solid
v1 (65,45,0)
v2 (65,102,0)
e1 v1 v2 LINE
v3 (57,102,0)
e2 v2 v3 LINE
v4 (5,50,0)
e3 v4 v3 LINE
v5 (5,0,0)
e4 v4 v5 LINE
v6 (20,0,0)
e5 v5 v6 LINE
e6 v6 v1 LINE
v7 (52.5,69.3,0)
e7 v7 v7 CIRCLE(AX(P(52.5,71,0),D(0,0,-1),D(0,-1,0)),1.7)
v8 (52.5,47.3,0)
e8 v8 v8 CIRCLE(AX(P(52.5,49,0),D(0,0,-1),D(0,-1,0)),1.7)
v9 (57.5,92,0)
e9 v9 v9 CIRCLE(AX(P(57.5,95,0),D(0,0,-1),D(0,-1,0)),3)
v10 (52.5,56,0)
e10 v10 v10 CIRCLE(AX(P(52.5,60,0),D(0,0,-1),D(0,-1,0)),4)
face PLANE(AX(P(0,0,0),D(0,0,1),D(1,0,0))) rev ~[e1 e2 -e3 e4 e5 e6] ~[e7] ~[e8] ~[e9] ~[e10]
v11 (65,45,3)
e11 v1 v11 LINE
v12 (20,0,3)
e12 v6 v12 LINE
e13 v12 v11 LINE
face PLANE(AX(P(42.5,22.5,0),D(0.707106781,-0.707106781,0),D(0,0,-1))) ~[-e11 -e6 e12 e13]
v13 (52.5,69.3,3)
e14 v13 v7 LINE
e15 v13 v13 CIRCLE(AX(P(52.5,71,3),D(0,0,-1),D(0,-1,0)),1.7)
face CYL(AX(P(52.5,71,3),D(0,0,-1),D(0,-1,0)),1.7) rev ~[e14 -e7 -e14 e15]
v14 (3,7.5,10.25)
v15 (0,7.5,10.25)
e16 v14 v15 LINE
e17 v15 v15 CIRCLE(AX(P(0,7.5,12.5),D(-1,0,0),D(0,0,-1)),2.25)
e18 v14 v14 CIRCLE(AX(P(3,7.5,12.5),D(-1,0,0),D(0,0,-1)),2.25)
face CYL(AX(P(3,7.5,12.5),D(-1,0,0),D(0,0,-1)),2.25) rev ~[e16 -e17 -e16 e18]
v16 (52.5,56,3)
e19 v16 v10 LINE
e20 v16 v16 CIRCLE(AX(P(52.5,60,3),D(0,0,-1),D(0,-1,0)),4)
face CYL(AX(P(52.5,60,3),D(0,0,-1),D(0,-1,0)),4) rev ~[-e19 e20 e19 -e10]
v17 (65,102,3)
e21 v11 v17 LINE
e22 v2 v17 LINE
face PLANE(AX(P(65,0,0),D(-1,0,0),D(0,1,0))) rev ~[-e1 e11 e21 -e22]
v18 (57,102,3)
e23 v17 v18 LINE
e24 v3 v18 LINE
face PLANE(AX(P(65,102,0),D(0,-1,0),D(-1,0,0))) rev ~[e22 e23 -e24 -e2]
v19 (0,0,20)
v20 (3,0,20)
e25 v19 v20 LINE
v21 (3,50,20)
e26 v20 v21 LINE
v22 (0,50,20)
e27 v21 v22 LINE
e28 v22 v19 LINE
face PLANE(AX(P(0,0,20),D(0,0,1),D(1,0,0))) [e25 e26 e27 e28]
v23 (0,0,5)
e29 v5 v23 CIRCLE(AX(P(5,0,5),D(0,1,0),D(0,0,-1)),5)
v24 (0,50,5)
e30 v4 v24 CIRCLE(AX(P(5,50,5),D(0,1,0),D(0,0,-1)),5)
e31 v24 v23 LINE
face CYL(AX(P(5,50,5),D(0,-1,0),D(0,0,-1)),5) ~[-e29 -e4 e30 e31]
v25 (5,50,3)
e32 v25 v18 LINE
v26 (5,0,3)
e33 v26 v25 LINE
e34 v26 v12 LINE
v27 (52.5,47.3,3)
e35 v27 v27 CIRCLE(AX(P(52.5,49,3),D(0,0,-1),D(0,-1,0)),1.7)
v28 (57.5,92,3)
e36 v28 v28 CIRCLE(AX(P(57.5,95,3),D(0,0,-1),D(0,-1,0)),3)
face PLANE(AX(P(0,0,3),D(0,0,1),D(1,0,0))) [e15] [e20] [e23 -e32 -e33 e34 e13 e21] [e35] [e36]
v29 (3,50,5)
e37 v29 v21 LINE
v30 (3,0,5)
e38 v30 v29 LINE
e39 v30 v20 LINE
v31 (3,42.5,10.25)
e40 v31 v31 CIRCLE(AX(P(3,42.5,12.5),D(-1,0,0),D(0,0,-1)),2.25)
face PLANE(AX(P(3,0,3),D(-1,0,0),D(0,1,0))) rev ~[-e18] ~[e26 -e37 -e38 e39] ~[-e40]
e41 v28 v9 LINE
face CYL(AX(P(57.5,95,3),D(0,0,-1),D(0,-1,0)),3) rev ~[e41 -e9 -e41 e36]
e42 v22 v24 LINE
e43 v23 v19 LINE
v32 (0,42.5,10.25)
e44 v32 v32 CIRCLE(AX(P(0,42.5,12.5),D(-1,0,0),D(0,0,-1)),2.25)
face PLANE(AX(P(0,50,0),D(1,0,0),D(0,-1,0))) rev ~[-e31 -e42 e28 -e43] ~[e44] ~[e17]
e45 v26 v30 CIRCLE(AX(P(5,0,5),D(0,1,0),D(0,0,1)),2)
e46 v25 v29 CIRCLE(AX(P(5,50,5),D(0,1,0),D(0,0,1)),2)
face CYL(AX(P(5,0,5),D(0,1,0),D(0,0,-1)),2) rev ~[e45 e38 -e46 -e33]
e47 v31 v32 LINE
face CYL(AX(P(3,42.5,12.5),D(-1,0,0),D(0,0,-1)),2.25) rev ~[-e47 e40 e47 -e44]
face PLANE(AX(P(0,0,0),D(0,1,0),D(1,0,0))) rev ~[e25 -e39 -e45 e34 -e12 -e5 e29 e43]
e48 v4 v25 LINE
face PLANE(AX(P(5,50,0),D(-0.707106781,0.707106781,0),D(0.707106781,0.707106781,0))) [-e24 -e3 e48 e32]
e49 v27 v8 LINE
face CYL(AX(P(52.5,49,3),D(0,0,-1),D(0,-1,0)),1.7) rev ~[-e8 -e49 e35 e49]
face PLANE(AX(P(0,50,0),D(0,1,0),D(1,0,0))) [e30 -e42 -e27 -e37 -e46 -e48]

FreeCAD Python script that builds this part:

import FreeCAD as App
import Part
import Sketcher


def edges_at(feature, points):
    """Names of the edges that pass closest to the given points."""
    edges = feature.Shape.Edges
    near = lambda p: min(range(len(edges)), key=lambda i: edges[i].distToShape(Part.Vertex(*p))[0])
    return sorted({f"Edge{near(p) + 1}" for p in points})

doc = App.newDocument("Part")
body = doc.addObject("PartDesign::Body", "Body")

# Sketch on XY plane
sketch1 = body.newObject("Sketcher::SketchObject", "Sketch")
sketch1.AttachmentSupport = (doc.getObject("XY_Plane"), [""])
sketch1.MapMode = "FlatFace"
sketch1.addGeometry(Part.LineSegment(App.Vector(0, 50, 0), App.Vector(0, 0, 0)), False)
sketch1.addGeometry(Part.LineSegment(App.Vector(0, 0, 0), App.Vector(65, 0, 0)), False)
sketch1.addGeometry(Part.LineSegment(App.Vector(65, 0, 0), App.Vector(65, 102, 0)), False)
sketch1.addGeometry(Part.LineSegment(App.Vector(65, 102, 0), App.Vector(57, 102, 0)), False)
sketch1.addGeometry(Part.LineSegment(App.Vector(57, 102, 0), App.Vector(5, 50, 0)), False)
sketch1.addGeometry(Part.LineSegment(App.Vector(5, 50, 0), App.Vector(0, 50, 0)), False)
sketch1.addConstraint(Sketcher.Constraint("Coincident", 0, 2, 1, 1))
sketch1.addConstraint(Sketcher.Constraint("Coincident", 1, 2, 2, 1))
sketch1.addConstraint(Sketcher.Constraint("Coincident", 2, 2, 3, 1))
sketch1.addConstraint(Sketcher.Constraint("Coincident", 3, 2, 4, 1))
sketch1.addConstraint(Sketcher.Constraint("Coincident", 4, 2, 5, 1))
sketch1.addConstraint(Sketcher.Constraint("Coincident", 5, 2, 0, 1))
sketch1.addConstraint(Sketcher.Constraint("Vertical", 0))
sketch1.addConstraint(Sketcher.Constraint("Horizontal", 1))
sketch1.addConstraint(Sketcher.Constraint("Vertical", 2))
sketch1.addConstraint(Sketcher.Constraint("Horizontal", 3))
sketch1.addConstraint(Sketcher.Constraint("Horizontal", 5))
sketch1.addConstraint(Sketcher.Constraint("Coincident", 0, 2, -1, 1))
sketch1.addConstraint(Sketcher.Constraint("DistanceX", 1, 1, 1, 2, 65.0))
sketch1.addConstraint(Sketcher.Constraint("DistanceX", 5, 2, 5, 1, 5.0))
sketch1.addConstraint(Sketcher.Constraint("DistanceY", 0, 2, 0, 1, 50.0))
sketch1.addConstraint(Sketcher.Constraint("DistanceY", 2, 1, 2, 2, 102.0))
sketch1.addConstraint(Sketcher.Constraint("DistanceX", 3, 2, 3, 1, 8.0))
pad1 = body.newObject("PartDesign::Pad", "Pad")
pad1.Profile = sketch1
pad1.Length = 3

# Sketch on XY plane
sketch2 = body.newObject("Sketcher::SketchObject", "Sketch001")
sketch2.AttachmentSupport = (doc.getObject("XY_Plane"), [""])
sketch2.MapMode = "FlatFace"
sketch2.AttachmentOffset = App.Placement(App.Vector(0, 0, 3), App.Rotation())
sketch2.addGeometry(Part.LineSegment(App.Vector(0, 50, 0), App.Vector(0, 0, 0)), False)
sketch2.addGeometry(Part.LineSegment(App.Vector(0, 0, 0), App.Vector(3, 0, 0)), False)
sketch2.addGeometry(Part.LineSegment(App.Vector(3, 0, 0), App.Vector(3, 50, 0)), False)
sketch2.addGeometry(Part.LineSegment(App.Vector(3, 50, 0), App.Vector(0, 50, 0)), False)
sketch2.addConstraint(Sketcher.Constraint("Coincident", 0, 2, 1, 1))
sketch2.addConstraint(Sketcher.Constraint("Coincident", 1, 2, 2, 1))
sketch2.addConstraint(Sketcher.Constraint("Coincident", 2, 2, 3, 1))
sketch2.addConstraint(Sketcher.Constraint("Coincident", 3, 2, 0, 1))
sketch2.addConstraint(Sketcher.Constraint("Vertical", 0))
sketch2.addConstraint(Sketcher.Constraint("Horizontal", 1))
sketch2.addConstraint(Sketcher.Constraint("Vertical", 2))
sketch2.addConstraint(Sketcher.Constraint("Horizontal", 3))
sketch2.addConstraint(Sketcher.Constraint("Coincident", 0, 2, -1, 1))
sketch2.addConstraint(Sketcher.Constraint("DistanceX", 1, 1, 1, 2, 3.0))
sketch2.addConstraint(Sketcher.Constraint("DistanceY", 0, 2, 0, 1, 50.0))
pad2 = body.newObject("PartDesign::Pad", "Pad001")
pad2.Profile = sketch2
pad2.Length = 17
doc.recompute()

chamfer = body.newObject("PartDesign::Chamfer", "Chamfer")
chamfer.Base = (pad2, edges_at(pad2, [(65, 0, 1.5)]))
chamfer.Size = 45

# Sketch on YZ plane
sketch3 = body.newObject("Sketcher::SketchObject", "Sketch002")
sketch3.AttachmentSupport = (doc.getObject("YZ_Plane"), [""])
sketch3.MapMode = "FlatFace"
sketch3.AttachmentOffset = App.Placement(App.Vector(0, 0, 3), App.Rotation())
sketch3.addGeometry(Part.Circle(App.Vector(42.5, 12.5, 0), App.Vector(0, 0, 1), 2.25), False)
sketch3.addGeometry(Part.Circle(App.Vector(7.5, 12.5, 0), App.Vector(0, 0, 1), 2.25), False)
sketch3.addConstraint(Sketcher.Constraint("Equal", 0, 1))
sketch3.addConstraint(Sketcher.Constraint("Horizontal", 0, 3, 1, 3))
sketch3.addConstraint(Sketcher.Constraint("Diameter", 0, 4.5))
sketch3.addConstraint(Sketcher.Constraint("DistanceX", 1, 3, 0, 3, 35.0))
sketch3.addConstraint(Sketcher.Constraint("DistanceX", -1, 1, 0, 3, 42.5))
sketch3.addConstraint(Sketcher.Constraint("DistanceY", -1, 1, 0, 3, 12.5))
doc.recompute()
hole = body.newObject("PartDesign::Hole", "Hole")
hole.Profile = sketch3
hole.ThreadType = "None"
hole.Diameter = 4.5
hole.DepthType = "ThroughAll"

# Sketch on XY plane
sketch4 = body.newObject("Sketcher::SketchObject", "Sketch003")
sketch4.AttachmentSupport = (doc.getObject("XY_Plane"), [""])
sketch4.MapMode = "FlatFace"
sketch4.AttachmentOffset = App.Placement(App.Vector(0, 0, 3), App.Rotation())
sketch4.addGeometry(Part.Circle(App.Vector(57.5, 95, 0), App.Vector(0, 0, 1), 3), False)
sketch4.addConstraint(Sketcher.Constraint("Diameter", 0, 6.0))
sketch4.addConstraint(Sketcher.Constraint("DistanceY", -1, 1, 0, 3, 95.0))
sketch4.addConstraint(Sketcher.Constraint("DistanceX", -1, 1, 0, 3, 57.5))
doc.recompute()
hole2 = body.newObject("PartDesign::Hole", "Hole001")
hole2.Profile = sketch4
hole2.ThreadType = "None"
hole2.Diameter = 6
hole2.DepthType = "ThroughAll"

# Sketch on XY plane
sketch5 = body.newObject("Sketcher::SketchObject", "Sketch004")
sketch5.AttachmentSupport = (doc.getObject("XY_Plane"), [""])
sketch5.MapMode = "FlatFace"
sketch5.AttachmentOffset = App.Placement(App.Vector(0, 0, 3), App.Rotation())
sketch5.addGeometry(Part.Circle(App.Vector(52.5, 71, 0), App.Vector(0, 0, 1), 1.7), False)
sketch5.addGeometry(Part.Circle(App.Vector(52.5, 49, 0), App.Vector(0, 0, 1), 1.7), False)
sketch5.addConstraint(Sketcher.Constraint("Equal", 0, 1))
sketch5.addConstraint(Sketcher.Constraint("Vertical", 0, 3, 1, 3))
sketch5.addConstraint(Sketcher.Constraint("Diameter", 0, 3.4))
sketch5.addConstraint(Sketcher.Constraint("DistanceY", -1, 1, 0, 3, 71.0))
sketch5.addConstraint(Sketcher.Constraint("DistanceY", -1, 1, 1, 3, 49.0))
sketch5.addConstraint(Sketcher.Constraint("DistanceX", -1, 1, 0, 3, 52.5))
doc.recompute()
hole3 = body.newObject("PartDesign::Hole", "Hole002")
hole3.Profile = sketch5
hole3.ThreadType = "None"
hole3.Diameter = 3.4
hole3.DepthType = "ThroughAll"
doc.recompute()

fillet = body.newObject("PartDesign::Fillet", "Fillet")
fillet.Base = (hole3, edges_at(hole3, [(3, 25, 3)]))
fillet.Radius = 2
doc.recompute()

fillet2 = body.newObject("PartDesign::Fillet", "Fillet001")
fillet2.Base = (fillet, edges_at(fillet, [(0, 25, 0)]))
fillet2.Radius = 5

# Sketch on XY plane
sketch6 = body.newObject("Sketcher::SketchObject", "Sketch005")
sketch6.AttachmentSupport = (doc.getObject("XY_Plane"), [""])
sketch6.MapMode = "FlatFace"
sketch6.AttachmentOffset = App.Placement(App.Vector(0, 0, 3), App.Rotation())
sketch6.addGeometry(Part.Circle(App.Vector(52.5, 60, 0), App.Vector(0, 0, 1), 4), False)
sketch6.addConstraint(Sketcher.Constraint("Diameter", 0, 8.0))
sketch6.addConstraint(Sketcher.Constraint("DistanceY", -1, 1, 0, 3, 60.0))
sketch6.addConstraint(Sketcher.Constraint("DistanceX", -1, 1, 0, 3, 52.5))
doc.recompute()
hole4 = body.newObject("PartDesign::Hole", "Hole003")
hole4.Profile = sketch6
hole4.ThreadType = "None"
hole4.Diameter = 8
hole4.DepthType = "ThroughAll"

doc.recompute()
